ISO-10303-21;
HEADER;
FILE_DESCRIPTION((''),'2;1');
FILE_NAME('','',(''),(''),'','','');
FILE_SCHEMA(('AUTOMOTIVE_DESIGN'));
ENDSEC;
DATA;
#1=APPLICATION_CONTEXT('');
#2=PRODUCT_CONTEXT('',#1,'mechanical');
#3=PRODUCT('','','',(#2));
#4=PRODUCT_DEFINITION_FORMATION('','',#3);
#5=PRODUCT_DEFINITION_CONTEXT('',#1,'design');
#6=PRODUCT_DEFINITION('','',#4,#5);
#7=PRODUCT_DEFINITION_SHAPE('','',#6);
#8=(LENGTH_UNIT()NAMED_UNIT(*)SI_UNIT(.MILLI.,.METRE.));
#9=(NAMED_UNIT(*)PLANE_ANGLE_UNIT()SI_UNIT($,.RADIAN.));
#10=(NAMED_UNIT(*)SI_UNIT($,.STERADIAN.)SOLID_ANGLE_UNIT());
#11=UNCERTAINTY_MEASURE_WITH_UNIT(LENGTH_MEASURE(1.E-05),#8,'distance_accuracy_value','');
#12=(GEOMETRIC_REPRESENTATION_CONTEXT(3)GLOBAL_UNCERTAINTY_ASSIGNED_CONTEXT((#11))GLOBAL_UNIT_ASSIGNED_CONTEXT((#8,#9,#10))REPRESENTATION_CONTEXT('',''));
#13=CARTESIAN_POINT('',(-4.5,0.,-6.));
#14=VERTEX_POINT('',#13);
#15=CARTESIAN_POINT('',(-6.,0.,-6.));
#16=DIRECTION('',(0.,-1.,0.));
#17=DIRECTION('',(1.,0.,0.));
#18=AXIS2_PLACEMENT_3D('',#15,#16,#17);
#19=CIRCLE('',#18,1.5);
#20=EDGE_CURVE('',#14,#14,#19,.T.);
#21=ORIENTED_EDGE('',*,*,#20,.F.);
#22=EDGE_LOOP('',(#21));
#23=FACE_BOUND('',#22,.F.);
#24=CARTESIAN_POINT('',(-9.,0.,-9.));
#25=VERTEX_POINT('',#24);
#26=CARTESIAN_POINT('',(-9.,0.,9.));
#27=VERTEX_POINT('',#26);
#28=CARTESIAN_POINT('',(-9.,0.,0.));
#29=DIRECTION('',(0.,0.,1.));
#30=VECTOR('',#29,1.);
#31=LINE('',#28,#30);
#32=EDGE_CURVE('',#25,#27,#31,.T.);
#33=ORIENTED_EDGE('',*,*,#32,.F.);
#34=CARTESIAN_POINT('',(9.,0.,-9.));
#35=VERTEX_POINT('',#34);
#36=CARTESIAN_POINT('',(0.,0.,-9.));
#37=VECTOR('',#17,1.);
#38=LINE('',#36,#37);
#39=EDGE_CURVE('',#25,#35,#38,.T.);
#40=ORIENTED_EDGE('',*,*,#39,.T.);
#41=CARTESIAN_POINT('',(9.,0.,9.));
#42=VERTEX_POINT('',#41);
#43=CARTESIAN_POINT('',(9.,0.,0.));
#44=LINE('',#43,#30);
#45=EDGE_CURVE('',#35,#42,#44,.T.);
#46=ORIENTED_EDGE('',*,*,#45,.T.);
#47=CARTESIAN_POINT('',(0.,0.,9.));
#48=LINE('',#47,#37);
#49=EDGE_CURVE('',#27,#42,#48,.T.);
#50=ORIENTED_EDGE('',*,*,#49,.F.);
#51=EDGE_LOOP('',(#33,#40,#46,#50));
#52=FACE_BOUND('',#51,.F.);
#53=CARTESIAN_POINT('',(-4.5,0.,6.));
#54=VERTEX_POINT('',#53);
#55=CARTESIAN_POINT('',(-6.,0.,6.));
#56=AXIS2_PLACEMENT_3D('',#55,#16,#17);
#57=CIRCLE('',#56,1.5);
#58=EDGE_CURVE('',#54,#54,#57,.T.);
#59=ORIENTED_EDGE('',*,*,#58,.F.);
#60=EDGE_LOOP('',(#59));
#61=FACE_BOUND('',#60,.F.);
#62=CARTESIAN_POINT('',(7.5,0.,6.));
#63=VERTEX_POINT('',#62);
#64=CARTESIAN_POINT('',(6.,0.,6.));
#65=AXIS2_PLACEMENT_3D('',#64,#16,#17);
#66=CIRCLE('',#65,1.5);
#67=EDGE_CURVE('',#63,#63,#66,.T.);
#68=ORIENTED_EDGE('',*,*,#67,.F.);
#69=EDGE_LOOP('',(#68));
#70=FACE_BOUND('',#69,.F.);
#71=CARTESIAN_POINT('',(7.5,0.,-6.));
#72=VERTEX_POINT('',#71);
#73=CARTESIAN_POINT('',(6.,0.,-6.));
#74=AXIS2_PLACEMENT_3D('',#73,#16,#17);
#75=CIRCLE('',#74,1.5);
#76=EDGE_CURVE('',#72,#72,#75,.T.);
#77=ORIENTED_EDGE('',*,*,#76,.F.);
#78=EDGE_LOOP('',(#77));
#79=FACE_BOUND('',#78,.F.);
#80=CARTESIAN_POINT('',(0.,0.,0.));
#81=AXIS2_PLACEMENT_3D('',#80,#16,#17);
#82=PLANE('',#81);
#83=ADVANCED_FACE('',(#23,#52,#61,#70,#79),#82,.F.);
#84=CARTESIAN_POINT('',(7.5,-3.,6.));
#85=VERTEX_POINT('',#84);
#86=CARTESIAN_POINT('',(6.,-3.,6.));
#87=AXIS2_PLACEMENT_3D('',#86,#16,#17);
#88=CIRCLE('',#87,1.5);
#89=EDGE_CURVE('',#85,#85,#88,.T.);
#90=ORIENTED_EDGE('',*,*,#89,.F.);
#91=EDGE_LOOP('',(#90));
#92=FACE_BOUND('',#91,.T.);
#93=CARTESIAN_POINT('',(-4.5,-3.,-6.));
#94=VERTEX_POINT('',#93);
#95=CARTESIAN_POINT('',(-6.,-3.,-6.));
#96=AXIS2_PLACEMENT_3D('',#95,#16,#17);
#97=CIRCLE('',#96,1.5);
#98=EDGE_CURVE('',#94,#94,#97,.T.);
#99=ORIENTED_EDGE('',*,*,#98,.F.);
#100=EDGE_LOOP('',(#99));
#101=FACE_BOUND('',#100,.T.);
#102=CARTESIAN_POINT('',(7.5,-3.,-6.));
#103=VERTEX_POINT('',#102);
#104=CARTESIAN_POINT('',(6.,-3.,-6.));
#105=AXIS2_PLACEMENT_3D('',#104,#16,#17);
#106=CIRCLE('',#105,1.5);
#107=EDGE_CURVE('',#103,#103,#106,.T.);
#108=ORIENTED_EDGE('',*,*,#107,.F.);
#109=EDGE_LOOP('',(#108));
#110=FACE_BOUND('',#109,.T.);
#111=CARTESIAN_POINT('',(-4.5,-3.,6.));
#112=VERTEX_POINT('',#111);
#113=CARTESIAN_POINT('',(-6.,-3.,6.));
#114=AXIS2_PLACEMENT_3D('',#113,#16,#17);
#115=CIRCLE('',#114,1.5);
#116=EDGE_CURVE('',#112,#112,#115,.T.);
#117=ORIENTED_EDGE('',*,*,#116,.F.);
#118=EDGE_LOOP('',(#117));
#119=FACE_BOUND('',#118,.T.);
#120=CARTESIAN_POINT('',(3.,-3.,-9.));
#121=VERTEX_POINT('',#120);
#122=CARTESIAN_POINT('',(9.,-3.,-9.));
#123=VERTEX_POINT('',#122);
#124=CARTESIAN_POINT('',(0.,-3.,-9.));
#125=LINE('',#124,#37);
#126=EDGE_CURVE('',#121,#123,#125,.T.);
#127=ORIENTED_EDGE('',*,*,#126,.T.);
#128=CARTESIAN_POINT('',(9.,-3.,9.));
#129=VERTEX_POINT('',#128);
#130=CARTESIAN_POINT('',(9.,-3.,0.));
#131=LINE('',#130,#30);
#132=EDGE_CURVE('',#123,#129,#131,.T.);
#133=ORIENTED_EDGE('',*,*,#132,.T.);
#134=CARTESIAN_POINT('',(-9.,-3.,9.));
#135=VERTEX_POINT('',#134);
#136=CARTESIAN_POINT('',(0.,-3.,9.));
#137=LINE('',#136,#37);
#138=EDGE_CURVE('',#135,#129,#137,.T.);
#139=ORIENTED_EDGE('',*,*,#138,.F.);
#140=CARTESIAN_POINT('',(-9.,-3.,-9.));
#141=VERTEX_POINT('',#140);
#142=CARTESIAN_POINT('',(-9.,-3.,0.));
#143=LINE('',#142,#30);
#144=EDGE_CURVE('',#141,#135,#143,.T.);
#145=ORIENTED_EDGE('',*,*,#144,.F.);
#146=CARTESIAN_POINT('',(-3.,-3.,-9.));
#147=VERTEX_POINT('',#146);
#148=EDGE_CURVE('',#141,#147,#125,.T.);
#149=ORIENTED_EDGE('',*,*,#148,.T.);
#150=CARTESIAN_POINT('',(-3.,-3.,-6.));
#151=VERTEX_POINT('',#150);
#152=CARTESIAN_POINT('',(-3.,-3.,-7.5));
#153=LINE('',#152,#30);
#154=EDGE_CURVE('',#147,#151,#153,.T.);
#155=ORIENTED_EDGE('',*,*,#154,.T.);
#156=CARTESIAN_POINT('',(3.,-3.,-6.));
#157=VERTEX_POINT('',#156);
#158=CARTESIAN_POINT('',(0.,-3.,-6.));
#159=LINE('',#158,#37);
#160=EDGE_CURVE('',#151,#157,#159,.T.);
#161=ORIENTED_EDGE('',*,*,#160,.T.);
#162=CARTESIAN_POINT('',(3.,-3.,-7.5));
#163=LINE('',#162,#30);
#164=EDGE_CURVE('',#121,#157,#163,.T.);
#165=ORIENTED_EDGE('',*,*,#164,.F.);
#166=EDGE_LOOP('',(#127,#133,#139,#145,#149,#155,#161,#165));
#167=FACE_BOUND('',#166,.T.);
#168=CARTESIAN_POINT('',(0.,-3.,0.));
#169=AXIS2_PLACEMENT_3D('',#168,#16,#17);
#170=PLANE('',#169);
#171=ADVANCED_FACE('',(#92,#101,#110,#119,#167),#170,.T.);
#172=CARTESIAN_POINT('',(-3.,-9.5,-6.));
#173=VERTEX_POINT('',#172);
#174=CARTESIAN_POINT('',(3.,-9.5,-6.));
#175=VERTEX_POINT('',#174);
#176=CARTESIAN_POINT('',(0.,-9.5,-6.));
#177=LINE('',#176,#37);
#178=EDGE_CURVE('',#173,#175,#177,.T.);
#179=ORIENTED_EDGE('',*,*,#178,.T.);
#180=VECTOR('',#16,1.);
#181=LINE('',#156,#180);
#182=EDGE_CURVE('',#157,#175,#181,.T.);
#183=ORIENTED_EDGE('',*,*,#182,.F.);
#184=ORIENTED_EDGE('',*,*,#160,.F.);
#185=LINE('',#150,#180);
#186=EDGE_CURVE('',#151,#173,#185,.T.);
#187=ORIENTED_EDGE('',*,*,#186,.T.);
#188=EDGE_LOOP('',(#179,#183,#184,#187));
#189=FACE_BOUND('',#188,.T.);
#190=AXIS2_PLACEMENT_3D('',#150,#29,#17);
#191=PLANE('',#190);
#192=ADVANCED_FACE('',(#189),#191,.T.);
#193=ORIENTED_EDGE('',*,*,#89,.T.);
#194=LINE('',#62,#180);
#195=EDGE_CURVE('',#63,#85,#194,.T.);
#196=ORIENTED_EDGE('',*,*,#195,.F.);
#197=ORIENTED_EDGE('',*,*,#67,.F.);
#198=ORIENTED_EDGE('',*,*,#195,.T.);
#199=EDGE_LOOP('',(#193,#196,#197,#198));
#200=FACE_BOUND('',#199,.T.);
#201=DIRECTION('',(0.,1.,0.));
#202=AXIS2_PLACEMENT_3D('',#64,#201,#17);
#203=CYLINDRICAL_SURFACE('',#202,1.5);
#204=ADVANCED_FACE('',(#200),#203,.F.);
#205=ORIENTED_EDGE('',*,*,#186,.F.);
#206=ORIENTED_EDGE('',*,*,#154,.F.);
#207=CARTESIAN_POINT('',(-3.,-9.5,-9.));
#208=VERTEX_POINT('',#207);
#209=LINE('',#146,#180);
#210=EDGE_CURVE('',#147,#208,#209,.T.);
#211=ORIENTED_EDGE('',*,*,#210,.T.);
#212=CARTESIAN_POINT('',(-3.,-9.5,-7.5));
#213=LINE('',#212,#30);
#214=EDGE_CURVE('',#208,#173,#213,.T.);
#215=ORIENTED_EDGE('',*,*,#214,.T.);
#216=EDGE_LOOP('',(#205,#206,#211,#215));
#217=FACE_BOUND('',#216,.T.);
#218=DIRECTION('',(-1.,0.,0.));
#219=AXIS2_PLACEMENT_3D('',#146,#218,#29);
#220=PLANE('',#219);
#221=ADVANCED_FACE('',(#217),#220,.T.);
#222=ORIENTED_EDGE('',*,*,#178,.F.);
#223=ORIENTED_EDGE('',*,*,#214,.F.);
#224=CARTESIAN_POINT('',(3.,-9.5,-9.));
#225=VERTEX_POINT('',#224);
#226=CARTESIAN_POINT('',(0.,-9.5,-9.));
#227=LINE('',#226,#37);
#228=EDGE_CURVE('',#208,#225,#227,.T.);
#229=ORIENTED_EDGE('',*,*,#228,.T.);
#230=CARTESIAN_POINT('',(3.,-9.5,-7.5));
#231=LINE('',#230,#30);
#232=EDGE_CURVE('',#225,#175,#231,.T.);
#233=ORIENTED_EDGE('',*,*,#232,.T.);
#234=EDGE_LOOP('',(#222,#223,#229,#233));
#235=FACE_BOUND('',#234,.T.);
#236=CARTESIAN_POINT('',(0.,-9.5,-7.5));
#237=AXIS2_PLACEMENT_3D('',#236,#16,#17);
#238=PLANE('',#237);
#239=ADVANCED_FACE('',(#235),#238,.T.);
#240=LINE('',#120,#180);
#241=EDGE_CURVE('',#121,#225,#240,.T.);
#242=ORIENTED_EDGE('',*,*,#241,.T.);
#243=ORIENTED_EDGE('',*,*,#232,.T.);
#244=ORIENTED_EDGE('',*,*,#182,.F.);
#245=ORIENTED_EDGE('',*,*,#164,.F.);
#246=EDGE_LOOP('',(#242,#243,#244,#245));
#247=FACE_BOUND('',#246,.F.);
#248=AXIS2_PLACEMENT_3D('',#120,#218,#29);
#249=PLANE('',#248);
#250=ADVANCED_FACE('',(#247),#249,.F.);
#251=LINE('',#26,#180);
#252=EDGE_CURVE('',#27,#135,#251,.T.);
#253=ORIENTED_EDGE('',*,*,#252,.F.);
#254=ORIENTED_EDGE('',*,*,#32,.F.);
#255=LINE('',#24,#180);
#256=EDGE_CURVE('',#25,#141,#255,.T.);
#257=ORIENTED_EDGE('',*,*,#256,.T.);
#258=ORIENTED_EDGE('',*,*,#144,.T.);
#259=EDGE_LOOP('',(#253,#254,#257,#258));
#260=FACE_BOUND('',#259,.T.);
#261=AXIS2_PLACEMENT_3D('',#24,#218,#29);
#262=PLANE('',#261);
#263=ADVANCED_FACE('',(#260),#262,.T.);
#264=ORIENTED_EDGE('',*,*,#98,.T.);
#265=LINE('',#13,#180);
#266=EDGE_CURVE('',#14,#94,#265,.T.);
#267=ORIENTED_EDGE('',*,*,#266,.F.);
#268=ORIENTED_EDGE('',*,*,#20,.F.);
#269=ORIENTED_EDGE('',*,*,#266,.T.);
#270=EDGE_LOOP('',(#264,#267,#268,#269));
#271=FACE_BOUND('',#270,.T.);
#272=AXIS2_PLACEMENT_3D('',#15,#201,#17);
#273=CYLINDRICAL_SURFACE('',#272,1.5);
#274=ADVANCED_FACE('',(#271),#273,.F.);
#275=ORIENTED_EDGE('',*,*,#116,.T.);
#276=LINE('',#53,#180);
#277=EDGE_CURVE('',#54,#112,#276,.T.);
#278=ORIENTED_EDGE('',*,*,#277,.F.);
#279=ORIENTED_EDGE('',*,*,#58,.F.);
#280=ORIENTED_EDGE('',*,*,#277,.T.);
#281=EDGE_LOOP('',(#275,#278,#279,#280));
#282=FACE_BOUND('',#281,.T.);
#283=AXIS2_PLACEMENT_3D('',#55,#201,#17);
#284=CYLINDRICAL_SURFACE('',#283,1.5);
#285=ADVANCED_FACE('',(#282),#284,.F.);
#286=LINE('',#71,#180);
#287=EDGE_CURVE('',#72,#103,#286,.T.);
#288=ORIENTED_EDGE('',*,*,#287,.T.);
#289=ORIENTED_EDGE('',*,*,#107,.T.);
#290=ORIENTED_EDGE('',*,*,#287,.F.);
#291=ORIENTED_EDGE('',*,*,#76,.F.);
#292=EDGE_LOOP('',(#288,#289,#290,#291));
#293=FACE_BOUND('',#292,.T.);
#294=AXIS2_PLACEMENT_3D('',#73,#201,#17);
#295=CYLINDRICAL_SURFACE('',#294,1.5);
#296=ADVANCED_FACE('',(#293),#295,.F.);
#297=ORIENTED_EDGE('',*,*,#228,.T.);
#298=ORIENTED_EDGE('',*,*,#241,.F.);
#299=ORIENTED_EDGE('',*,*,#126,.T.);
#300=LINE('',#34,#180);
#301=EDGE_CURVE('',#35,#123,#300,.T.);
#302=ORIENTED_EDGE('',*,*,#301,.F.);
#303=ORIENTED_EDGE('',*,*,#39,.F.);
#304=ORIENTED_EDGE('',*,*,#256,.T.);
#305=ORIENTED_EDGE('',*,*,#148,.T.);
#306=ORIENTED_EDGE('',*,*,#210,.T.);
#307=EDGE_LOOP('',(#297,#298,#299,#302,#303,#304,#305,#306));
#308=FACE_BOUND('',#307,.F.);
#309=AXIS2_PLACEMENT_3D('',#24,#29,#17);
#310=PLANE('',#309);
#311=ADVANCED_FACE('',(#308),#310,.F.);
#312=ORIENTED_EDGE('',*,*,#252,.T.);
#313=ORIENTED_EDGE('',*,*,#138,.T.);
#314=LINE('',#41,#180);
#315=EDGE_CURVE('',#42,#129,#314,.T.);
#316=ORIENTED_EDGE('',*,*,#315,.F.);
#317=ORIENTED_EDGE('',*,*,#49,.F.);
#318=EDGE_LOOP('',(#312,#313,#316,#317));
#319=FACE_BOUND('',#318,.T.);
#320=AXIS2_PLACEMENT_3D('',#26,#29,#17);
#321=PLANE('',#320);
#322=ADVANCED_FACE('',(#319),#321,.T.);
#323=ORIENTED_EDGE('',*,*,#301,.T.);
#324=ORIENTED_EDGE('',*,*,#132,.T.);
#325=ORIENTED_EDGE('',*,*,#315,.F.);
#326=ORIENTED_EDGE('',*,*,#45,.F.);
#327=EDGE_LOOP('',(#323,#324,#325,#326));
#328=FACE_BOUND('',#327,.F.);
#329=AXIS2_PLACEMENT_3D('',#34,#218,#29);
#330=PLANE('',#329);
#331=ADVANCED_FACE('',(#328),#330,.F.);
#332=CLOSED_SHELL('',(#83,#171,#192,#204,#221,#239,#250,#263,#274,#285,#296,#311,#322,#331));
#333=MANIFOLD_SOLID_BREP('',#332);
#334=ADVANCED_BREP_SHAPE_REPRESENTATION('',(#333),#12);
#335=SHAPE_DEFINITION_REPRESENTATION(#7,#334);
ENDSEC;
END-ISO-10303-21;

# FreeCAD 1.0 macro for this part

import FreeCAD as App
import Part
import Sketcher
Q = App.Units.Quantity


def add_polygon(sketch, points):
    """Adds a closed chain of lines whose ends are joined by coincident constraints."""
    first, n = sketch.GeometryCount, len(points)
    for a, b in zip(points, points[1:] + points[:1]):
        sketch.addGeometry(Part.LineSegment(App.Vector(*a, 0), App.Vector(*b, 0)), False)
    for i in range(n):
        sketch.addConstraint(Sketcher.Constraint("Coincident", first + i, 2, first + (i + 1) % n, 1))

doc = App.newDocument("Part")
params = doc.addObject("Spreadsheet::Sheet", "Params")
for row, (alias, value) in enumerate([
    ("sketch1_diameter", "3 mm"),
    ("sketch1_width", "18 mm"),
    ("pad1_length", "3 mm"),
    ("sketch2_width", "6 mm"),
    ("sketch2_height", "3 mm"),
    ("pad2_length", "6.5 mm"),
], start=1):
    params.set(f"A{row}", alias)
    params.set(f"B{row}", "=" + value)
    params.setAlias(f"B{row}", alias)

body = doc.addObject("PartDesign::Body", "Body")

sketch1 = doc.addObject("Sketcher::SketchObject", "Sketch")
body.addObject(sketch1)
sketch1.AttachmentSupport = (doc.XZ_Plane, [""])
sketch1.MapMode = "FlatFace"
add_polygon(sketch1, [(-9, 9), (-9, -9), (9, -9), (9, 9)])
sketch1.addGeometry(Part.Circle(App.Vector(-6, -6, 0), App.Vector(0, 0, 1), 1.5), False)
sketch1.addGeometry(Part.Circle(App.Vector(6, -6, 0), App.Vector(0, 0, 1), 1.5), False)
sketch1.addGeometry(Part.Circle(App.Vector(-6, 6, 0), App.Vector(0, 0, 1), 1.5), False)
sketch1.addGeometry(Part.Circle(App.Vector(6, 6, 0), App.Vector(0, 0, 1), 1.5), False)
sketch1.addConstraint([
    Sketcher.Constraint("Vertical", 0),
    Sketcher.Constraint("Horizontal", 1),
    Sketcher.Constraint("Vertical", 2),
    Sketcher.Constraint("Horizontal", 3),
    Sketcher.Constraint("Equal", 4, 5),
    Sketcher.Constraint("Equal", 5, 6),
    Sketcher.Constraint("Equal", 6, 7),
    Sketcher.Constraint("Symmetric", 5, 3, 6, 3, -1, 1),
    Sketcher.Constraint("Symmetric", 4, 3, 7, 3, -1, 1),
    Sketcher.Constraint("Symmetric", 0, 2, 2, 2, -1, 1),
    Sketcher.Constraint("Symmetric", 4, 3, 5, 3, -2),
    Sketcher.Constraint("Equal", 3, 0),
    Sketcher.Constraint("Diameter", 4, Q("3 mm")),
    Sketcher.Constraint("DistanceX", 1, 1, 1, 2, Q("18 mm")),
    Sketcher.Constraint("DistanceX", 4, 3, -1, 1, Q("6 mm")),
    Sketcher.Constraint("DistanceY", 4, 3, -1, 1, Q("6 mm")),
])
sketch1.setExpression("Constraints[16]", "Params.sketch1_diameter")
sketch1.setExpression("Constraints[17]", "Params.sketch1_width")
pad1 = doc.addObject("PartDesign::Pad", "Pad")
body.addObject(pad1)
pad1.Profile = sketch1
pad1.setExpression("Length", "Params.pad1_length")

sketch2 = doc.addObject("Sketcher::SketchObject", "Sketch001")
body.addObject(sketch2)
sketch2.AttachmentSupport = (doc.XZ_Plane, [""])
sketch2.MapMode = "FlatFace"
sketch2.AttachmentOffset = App.Placement(App.Vector(0, 0, 3), App.Rotation())
add_polygon(sketch2, [(-3, -6), (-3, -9), (3, -9), (3, -6)])
sketch2.addConstraint([
    Sketcher.Constraint("Vertical", 0),
    Sketcher.Constraint("Horizontal", 1),
    Sketcher.Constraint("Vertical", 2),
    Sketcher.Constraint("Horizontal", 3),
    Sketcher.Constraint("DistanceX", 1, 1, 1, 2, Q("6 mm")),
    Sketcher.Constraint("DistanceY", 0, 2, 0, 1, Q("3 mm")),
    Sketcher.Constraint("DistanceX", 0, 2, -1, 1, Q("3 mm")),
    Sketcher.Constraint("DistanceY", 0, 2, -1, 1, Q("9 mm")),
])
sketch2.setExpression("Constraints[8]", "Params.sketch2_width")
sketch2.setExpression("Constraints[9]", "Params.sketch2_height")
pad2 = doc.addObject("PartDesign::Pad", "Pad001")
body.addObject(pad2)
pad2.Profile = sketch2
pad2.setExpression("Length", "Params.pad2_length")

doc.recompute()
